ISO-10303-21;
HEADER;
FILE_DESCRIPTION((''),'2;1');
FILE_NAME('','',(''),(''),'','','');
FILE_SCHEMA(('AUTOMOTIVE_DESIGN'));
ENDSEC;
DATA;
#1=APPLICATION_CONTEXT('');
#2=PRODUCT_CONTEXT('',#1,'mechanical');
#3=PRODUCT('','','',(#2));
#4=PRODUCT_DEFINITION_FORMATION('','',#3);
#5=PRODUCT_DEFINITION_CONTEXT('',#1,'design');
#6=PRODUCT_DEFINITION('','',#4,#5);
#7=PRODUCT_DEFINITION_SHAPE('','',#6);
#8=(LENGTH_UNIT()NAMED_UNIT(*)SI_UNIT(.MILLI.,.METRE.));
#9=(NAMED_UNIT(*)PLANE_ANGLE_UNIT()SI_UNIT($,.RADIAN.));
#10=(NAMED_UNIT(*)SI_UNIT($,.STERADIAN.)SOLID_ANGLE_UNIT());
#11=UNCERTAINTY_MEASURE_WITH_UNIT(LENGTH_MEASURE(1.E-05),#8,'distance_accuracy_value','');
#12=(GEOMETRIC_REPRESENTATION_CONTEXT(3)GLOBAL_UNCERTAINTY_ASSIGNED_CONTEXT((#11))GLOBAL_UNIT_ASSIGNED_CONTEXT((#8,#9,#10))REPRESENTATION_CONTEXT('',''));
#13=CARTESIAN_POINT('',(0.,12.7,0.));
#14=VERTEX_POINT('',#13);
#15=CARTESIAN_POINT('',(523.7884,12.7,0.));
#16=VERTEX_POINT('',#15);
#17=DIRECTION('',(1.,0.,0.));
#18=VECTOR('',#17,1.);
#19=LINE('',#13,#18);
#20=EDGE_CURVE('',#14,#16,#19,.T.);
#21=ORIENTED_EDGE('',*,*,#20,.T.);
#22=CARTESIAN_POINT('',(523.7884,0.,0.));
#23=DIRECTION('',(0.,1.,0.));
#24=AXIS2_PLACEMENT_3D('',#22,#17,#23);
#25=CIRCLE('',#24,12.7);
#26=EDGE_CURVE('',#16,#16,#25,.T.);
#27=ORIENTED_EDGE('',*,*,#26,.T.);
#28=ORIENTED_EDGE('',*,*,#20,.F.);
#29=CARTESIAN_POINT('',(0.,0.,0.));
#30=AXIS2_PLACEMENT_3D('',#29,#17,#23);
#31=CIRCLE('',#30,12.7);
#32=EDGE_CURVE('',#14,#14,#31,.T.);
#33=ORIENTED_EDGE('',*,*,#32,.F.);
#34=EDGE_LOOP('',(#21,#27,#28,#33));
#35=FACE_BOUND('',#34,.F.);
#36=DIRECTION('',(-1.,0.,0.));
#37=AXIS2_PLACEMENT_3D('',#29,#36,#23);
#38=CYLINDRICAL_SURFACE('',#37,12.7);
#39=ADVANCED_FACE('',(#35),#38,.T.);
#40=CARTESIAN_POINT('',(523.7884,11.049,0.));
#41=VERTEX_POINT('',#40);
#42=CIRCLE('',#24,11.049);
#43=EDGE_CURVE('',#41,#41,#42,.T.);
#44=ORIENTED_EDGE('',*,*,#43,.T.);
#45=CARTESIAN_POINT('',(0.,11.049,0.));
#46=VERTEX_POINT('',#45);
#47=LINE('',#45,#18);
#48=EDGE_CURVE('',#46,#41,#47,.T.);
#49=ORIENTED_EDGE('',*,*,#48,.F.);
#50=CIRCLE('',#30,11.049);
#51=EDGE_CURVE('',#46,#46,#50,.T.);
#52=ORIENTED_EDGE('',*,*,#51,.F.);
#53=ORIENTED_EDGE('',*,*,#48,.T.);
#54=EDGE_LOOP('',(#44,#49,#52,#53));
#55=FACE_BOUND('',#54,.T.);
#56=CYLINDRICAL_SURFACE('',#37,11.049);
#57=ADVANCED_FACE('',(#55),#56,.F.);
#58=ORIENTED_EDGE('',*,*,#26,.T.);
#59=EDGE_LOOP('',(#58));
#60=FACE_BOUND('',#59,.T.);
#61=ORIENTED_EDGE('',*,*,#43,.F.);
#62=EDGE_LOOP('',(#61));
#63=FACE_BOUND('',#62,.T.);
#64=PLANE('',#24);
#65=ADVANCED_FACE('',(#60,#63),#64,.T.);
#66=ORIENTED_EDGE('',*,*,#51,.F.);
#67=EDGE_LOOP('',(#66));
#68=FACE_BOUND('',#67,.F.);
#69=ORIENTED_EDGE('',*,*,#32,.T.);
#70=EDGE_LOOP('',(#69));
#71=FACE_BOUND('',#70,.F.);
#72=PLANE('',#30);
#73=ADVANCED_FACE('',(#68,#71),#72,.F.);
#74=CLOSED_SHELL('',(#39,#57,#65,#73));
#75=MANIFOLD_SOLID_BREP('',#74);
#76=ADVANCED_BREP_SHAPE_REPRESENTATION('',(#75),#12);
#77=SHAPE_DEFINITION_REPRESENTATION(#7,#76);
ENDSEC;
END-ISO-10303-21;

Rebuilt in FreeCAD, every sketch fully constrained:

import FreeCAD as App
import Part
import Sketcher
Q = App.Units.Quantity

doc = App.newDocument("Part")
body = doc.addObject("PartDesign::Body", "Body")

# Sketch on YZ plane
sketch1 = body.newObject("Sketcher::SketchObject", "Sketch")
sketch1.AttachmentSupport = (doc.getObject("YZ_Plane"), [""])
sketch1.MapMode = "FlatFace"
sketch1.addGeometry([
    Part.Circle(App.Vector(0, 0, 0), App.Vector(0, 0, 1), 13),
    Part.Circle(App.Vector(0, 0, 0), App.Vector(0, 0, 1), 11),
], False)
sketch1.addConstraint([
    Sketcher.Constraint("Coincident", 0, 3, -1, 1),
    Sketcher.Constraint("Coincident", 1, 3, -1, 1),
    Sketcher.Constraint("Diameter", 0, Q("1 in")),
    Sketcher.Constraint("Diameter", 1, Q("0.87 in")),
])
pad1 = body.newObject("PartDesign::Pad", "Pad")
pad1.Profile = sketch1
pad1.Length = Q("20.6215906 in")

doc.recompute()
